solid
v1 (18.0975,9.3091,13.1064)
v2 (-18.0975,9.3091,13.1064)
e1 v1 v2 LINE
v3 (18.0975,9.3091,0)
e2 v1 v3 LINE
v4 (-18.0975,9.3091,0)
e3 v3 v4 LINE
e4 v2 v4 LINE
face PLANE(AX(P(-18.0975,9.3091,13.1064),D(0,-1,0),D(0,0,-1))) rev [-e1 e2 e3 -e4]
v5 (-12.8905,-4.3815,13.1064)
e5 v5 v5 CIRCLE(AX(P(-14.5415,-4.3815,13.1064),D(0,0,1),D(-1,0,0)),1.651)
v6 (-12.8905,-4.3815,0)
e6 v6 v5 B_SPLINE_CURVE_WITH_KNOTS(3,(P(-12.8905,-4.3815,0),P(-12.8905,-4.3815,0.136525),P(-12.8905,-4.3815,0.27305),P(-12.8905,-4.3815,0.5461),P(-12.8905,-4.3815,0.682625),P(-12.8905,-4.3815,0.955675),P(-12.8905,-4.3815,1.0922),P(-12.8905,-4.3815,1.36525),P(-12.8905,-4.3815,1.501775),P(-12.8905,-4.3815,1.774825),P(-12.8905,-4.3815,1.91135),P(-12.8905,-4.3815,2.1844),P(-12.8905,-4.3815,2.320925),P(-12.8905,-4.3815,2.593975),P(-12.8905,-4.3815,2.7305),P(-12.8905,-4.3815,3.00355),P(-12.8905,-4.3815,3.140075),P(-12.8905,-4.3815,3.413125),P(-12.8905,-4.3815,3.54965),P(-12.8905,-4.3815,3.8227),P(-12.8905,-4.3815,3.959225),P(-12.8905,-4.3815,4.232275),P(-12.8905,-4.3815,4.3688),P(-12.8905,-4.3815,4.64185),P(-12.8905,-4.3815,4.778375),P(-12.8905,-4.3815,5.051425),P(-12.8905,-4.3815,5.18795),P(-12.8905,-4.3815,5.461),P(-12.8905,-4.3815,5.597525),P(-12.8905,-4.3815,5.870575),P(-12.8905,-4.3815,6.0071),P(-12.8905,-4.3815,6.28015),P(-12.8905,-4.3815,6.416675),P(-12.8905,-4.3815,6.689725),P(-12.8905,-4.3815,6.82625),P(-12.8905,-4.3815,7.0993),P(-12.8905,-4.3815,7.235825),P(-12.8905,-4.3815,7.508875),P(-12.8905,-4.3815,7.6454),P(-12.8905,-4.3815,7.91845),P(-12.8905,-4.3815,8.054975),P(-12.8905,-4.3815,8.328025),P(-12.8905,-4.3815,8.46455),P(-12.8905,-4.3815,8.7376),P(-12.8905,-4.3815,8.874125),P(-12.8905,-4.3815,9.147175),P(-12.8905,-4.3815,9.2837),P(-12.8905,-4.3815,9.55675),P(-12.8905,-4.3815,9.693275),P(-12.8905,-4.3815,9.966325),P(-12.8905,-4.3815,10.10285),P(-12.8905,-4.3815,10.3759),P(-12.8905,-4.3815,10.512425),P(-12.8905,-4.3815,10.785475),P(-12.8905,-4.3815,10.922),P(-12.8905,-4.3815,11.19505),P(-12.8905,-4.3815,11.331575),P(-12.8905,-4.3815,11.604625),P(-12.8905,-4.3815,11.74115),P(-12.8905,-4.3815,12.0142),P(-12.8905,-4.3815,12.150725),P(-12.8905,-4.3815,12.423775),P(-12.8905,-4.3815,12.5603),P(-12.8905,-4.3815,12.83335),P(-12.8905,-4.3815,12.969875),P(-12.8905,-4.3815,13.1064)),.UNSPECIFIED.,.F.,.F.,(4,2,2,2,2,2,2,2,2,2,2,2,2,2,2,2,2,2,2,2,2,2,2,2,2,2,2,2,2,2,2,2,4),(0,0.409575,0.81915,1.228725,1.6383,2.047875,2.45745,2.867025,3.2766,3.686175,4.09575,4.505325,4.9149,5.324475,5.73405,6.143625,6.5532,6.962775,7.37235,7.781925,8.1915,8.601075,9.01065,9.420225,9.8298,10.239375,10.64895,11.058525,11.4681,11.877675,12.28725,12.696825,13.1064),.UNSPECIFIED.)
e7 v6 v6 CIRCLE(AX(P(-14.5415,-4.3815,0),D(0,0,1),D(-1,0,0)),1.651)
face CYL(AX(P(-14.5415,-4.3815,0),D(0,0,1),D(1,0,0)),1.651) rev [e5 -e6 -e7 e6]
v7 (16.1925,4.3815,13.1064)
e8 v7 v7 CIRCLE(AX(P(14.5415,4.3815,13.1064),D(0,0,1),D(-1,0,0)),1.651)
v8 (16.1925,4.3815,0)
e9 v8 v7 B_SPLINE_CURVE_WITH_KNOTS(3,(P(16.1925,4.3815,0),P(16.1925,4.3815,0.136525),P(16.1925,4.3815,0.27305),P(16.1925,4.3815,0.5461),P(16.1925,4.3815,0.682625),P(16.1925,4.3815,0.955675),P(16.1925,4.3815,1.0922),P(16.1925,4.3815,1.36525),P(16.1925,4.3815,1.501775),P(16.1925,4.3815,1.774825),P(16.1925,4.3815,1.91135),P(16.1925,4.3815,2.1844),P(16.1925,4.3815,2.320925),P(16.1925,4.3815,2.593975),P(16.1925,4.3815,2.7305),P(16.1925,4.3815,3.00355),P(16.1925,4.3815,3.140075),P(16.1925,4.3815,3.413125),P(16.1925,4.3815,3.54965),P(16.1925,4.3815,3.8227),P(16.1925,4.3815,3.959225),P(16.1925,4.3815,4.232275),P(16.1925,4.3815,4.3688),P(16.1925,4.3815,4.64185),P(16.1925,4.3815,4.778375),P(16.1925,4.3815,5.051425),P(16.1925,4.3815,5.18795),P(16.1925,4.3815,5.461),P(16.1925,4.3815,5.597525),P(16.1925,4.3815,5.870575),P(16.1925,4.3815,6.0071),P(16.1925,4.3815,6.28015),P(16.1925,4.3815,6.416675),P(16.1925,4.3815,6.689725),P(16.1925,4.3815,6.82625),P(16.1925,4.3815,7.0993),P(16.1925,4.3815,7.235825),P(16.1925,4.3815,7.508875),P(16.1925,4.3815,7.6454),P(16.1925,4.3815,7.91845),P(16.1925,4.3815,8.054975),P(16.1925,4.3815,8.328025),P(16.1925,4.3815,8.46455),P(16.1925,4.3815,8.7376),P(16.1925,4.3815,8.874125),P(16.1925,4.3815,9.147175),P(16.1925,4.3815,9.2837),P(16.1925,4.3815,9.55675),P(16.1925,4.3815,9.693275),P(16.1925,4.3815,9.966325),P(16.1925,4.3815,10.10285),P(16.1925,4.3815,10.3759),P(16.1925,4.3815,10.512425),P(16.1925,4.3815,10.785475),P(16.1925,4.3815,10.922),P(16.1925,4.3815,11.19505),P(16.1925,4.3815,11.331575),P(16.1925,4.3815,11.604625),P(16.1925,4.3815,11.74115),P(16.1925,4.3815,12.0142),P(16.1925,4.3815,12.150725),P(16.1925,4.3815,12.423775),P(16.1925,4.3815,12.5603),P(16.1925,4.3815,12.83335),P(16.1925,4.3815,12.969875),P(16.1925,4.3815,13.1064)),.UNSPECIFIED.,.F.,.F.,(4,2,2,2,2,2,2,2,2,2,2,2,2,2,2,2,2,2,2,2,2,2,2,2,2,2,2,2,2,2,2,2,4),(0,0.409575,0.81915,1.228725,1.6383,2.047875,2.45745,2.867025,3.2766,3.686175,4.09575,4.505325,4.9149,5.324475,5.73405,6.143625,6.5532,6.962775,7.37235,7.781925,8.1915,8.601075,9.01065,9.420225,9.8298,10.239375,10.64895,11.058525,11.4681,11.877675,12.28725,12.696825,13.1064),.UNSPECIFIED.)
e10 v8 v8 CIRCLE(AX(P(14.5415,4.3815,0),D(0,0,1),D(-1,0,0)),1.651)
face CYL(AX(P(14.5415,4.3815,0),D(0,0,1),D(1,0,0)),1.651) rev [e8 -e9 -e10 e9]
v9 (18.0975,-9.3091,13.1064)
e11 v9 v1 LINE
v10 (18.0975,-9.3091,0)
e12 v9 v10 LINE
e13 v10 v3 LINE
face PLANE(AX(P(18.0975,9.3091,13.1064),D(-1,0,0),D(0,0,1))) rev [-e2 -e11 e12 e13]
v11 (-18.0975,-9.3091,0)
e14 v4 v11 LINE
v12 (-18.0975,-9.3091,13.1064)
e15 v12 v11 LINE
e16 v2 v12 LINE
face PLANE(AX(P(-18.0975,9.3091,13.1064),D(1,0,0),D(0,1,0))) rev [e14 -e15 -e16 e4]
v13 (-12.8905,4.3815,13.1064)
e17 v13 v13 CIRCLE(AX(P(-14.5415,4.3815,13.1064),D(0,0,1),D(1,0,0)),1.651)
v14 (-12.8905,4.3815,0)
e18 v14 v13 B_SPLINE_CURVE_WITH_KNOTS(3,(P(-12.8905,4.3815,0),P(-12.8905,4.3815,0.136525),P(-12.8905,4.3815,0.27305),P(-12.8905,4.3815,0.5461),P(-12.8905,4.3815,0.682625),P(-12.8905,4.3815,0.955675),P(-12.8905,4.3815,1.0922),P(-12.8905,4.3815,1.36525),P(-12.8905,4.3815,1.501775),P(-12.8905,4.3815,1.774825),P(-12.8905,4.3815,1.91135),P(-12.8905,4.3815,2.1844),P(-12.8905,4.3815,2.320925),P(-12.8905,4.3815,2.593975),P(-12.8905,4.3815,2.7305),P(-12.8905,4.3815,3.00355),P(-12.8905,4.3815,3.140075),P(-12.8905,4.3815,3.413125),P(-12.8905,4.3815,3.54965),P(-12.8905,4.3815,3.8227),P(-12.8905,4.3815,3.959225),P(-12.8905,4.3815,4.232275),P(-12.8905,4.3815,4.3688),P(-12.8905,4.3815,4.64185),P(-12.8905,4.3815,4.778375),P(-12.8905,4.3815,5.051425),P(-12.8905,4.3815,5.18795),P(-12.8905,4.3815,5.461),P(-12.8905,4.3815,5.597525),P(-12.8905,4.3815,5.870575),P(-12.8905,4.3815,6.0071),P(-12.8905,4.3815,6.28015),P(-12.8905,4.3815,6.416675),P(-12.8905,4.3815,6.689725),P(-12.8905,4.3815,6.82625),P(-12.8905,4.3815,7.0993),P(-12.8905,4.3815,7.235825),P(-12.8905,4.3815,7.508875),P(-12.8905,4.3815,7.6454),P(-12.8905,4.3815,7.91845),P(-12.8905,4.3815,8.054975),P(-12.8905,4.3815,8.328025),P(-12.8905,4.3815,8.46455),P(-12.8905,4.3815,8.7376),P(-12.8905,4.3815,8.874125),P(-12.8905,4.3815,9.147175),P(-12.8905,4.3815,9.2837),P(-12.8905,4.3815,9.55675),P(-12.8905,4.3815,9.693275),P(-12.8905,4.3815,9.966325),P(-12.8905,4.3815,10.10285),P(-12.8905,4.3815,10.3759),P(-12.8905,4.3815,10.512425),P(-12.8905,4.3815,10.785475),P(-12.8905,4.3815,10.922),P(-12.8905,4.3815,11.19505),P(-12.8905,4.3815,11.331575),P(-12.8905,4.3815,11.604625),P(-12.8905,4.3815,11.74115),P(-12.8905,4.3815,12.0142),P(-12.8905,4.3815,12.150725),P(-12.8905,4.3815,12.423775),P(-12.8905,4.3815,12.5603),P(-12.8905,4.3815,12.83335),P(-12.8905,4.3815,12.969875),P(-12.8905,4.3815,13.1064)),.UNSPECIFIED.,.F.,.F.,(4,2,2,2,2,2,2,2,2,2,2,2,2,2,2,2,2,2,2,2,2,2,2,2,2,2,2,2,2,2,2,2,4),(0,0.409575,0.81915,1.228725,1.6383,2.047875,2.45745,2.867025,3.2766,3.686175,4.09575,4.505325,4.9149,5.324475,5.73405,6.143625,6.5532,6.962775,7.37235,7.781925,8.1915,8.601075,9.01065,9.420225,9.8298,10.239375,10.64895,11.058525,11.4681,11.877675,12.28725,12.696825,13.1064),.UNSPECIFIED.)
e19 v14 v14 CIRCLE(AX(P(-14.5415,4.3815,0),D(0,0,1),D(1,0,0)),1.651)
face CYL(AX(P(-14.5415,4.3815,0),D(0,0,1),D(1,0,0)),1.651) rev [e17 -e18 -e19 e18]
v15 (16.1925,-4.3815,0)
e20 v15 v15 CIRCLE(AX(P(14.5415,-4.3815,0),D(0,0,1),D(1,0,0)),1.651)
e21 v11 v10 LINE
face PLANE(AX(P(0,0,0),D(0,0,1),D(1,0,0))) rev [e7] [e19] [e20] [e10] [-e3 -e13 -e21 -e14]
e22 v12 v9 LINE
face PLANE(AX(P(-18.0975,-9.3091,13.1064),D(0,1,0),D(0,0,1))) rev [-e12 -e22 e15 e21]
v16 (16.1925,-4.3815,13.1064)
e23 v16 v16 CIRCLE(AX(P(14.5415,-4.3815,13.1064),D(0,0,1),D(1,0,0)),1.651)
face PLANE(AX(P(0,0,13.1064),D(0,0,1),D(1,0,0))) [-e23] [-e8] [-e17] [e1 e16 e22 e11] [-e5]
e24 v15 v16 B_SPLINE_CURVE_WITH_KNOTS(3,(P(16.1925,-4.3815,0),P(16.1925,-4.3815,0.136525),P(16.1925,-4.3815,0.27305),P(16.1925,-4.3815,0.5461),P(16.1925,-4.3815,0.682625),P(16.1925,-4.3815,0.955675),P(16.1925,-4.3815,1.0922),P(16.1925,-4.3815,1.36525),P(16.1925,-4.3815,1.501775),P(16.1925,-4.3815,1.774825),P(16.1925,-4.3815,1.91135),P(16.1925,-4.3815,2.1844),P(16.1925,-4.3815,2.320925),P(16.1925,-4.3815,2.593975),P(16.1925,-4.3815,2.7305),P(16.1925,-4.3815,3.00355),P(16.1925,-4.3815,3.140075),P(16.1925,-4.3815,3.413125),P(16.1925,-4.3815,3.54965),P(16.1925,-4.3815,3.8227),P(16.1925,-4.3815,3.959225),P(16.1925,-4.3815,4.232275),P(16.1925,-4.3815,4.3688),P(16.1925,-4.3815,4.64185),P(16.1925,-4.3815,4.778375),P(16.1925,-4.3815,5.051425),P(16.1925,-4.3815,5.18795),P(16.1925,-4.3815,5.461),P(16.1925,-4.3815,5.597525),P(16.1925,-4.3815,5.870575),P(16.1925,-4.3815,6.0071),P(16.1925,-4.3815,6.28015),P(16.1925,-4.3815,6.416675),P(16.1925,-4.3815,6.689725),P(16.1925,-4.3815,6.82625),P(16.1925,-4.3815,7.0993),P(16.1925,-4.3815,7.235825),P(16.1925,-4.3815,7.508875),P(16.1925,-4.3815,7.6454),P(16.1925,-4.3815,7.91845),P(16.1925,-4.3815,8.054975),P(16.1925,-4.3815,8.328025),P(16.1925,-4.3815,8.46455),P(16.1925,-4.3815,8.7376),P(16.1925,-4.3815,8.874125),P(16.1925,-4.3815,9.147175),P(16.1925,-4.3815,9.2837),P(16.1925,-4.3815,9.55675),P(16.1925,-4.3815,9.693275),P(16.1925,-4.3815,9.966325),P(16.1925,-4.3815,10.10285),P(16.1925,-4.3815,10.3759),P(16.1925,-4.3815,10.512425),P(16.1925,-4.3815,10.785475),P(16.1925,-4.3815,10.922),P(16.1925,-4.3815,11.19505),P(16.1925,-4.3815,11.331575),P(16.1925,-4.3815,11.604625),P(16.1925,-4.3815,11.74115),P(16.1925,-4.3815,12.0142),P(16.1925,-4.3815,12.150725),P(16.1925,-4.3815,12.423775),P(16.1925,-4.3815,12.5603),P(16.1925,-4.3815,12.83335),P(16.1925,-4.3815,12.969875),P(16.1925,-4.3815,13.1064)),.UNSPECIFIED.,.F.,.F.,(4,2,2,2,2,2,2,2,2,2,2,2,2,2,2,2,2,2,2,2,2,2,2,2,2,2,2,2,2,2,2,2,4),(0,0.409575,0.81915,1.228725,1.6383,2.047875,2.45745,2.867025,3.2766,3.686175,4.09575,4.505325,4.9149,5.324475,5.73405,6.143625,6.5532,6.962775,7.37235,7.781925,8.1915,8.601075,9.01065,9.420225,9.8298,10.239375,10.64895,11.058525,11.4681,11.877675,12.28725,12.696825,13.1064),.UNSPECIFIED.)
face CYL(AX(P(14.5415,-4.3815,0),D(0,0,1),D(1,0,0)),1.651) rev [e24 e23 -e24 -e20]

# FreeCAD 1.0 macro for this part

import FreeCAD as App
import Part
import Sketcher
Q = App.Units.Quantity


def add_polygon(sketch, points):
    """Adds a closed chain of lines whose ends are joined by coincident constraints."""
    first, n = sketch.GeometryCount, len(points)
    for a, b in zip(points, points[1:] + points[:1]):
        sketch.addGeometry(Part.LineSegment(App.Vector(*a, 0), App.Vector(*b, 0)), False)
    for i in range(n):
        sketch.addConstraint(Sketcher.Constraint("Coincident", first + i, 2, first + (i + 1) % n, 1))

doc = App.newDocument("Part")
body = doc.addObject("PartDesign::Body", "Body")

sketch1 = body.newObject("Sketcher::SketchObject", "Sketch")
sketch1.AttachmentSupport = (doc.getObject("XY_Plane"), [""])
sketch1.MapMode = "FlatFace"
add_polygon(sketch1, [(-18.0975, 9.3091), (-18.0975, -9.3091), (18.0975, -9.3091), (18.0975, 9.3091)])
sketch1.addConstraint(Sketcher.Constraint("Vertical", 0))
sketch1.addConstraint(Sketcher.Constraint("Horizontal", 1))
sketch1.addConstraint(Sketcher.Constraint("Vertical", 2))
sketch1.addConstraint(Sketcher.Constraint("Horizontal", 3))
sketch1.addConstraint(Sketcher.Constraint("Symmetric", 0, 2, 2, 2, -1, 1))
sketch1.addConstraint(Sketcher.Constraint("DistanceX", 1, 1, 1, 2, Q("1.425 in")))
sketch1.addConstraint(Sketcher.Constraint("DistanceY", 0, 2, 0, 1, Q("0.733 in")))
pad1 = body.newObject("PartDesign::Pad", "Pad")
pad1.Profile = sketch1
pad1.Length = Q("0.516 in")

sketch2 = body.newObject("Sketcher::SketchObject", "Sketch001")
sketch2.AttachmentSupport = (doc.getObject("XY_Plane"), [""])
sketch2.MapMode = "FlatFace"
sketch2.AttachmentOffset = App.Placement(App.Vector(0, 0, 0.516 * 25.4), App.Rotation())
sketch2.addGeometry(Part.Circle(App.Vector(-14.5415, 4.3815, 0), App.Vector(0, 0, 1), 1.651), False)
sketch2.addGeometry(Part.Circle(App.Vector(14.5415, 4.3815, 0), App.Vector(0, 0, 1), 1.651), False)
sketch2.addGeometry(Part.Circle(App.Vector(14.5415, -4.3815, 0), App.Vector(0, 0, 1), 1.651), False)
sketch2.addGeometry(Part.Circle(App.Vector(-14.5415, -4.3815, 0), App.Vector(0, 0, 1), 1.651), False)
sketch2.addConstraint(Sketcher.Constraint("Equal", 0, 1))
sketch2.addConstraint(Sketcher.Constraint("Equal", 1, 2))
sketch2.addConstraint(Sketcher.Constraint("Equal", 2, 3))
sketch2.addConstraint(Sketcher.Constraint("Symmetric", 0, 3, 2, 3, -1, 1))
sketch2.addConstraint(Sketcher.Constraint("Symmetric", 1, 3, 3, 3, -1, 1))
sketch2.addConstraint(Sketcher.Constraint("Symmetric", 0, 3, 1, 3, -2))
sketch2.addConstraint(Sketcher.Constraint("Diameter", 0, Q("0.13 in")))
sketch2.addConstraint(Sketcher.Constraint("DistanceX", 0, 3, 1, 3, Q("1.145 in")))
sketch2.addConstraint(Sketcher.Constraint("DistanceY", 2, 3, 1, 3, Q("0.345 in")))
pocket1 = body.newObject("PartDesign::Pocket", "Pocket")
pocket1.Profile = sketch2
pocket1.Type = "ThroughAll"

doc.recompute()
